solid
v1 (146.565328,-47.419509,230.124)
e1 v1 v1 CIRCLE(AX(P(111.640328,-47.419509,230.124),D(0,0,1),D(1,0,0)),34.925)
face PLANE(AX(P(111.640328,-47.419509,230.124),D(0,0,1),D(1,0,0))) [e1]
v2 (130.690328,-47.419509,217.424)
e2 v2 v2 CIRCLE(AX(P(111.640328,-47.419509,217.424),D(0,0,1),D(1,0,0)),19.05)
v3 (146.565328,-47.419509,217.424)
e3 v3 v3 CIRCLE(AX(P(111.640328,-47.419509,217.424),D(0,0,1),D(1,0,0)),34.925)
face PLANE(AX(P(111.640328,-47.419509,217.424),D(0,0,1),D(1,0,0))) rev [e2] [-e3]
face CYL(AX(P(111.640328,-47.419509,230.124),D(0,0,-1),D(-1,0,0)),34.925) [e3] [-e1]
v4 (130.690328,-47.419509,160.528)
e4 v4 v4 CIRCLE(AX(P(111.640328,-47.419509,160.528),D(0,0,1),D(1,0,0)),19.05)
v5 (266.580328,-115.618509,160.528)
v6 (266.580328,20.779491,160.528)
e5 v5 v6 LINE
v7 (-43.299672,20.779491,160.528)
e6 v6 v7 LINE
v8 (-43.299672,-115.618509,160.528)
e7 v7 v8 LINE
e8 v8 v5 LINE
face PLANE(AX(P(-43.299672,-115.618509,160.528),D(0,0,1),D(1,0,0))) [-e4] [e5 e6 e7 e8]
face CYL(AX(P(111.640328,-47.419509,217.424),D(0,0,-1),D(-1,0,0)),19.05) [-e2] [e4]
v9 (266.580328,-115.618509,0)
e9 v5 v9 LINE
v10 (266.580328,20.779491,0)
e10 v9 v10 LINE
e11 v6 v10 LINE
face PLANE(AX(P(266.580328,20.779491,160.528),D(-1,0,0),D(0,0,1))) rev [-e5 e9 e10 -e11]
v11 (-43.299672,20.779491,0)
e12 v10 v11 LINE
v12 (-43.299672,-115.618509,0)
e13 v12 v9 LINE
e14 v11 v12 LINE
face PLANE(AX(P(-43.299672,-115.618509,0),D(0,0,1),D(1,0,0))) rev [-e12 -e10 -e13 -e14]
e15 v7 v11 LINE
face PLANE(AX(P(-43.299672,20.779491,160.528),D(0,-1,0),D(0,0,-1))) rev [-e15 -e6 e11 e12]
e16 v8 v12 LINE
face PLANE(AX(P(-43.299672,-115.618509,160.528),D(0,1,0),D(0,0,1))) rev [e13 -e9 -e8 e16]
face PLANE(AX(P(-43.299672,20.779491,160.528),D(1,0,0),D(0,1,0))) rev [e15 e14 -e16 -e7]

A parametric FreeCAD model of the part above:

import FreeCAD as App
import Part
import Sketcher
from FreeCAD import Vector
Q = App.Units.Quantity

doc = App.newDocument("Part")
body = doc.addObject("PartDesign::Body", "Body")

# Sketch on XY plane
sketch1 = body.newObject("Sketcher::SketchObject", "Sketch")
sketch1.AttachmentSupport = (doc.getObject("XY_Plane"), [""])
sketch1.MapMode = "FlatFace"
sketch1.addGeometry(Part.LineSegment(Vector(-43, 21, 0), Vector(-43, -116, 0)), False)
sketch1.addGeometry(Part.LineSegment(Vector(-43, -116, 0), Vector(267, -116, 0)), False)
sketch1.addGeometry(Part.LineSegment(Vector(267, -116, 0), Vector(267, 21, 0)), False)
sketch1.addGeometry(Part.LineSegment(Vector(267, 21, 0), Vector(-43, 21, 0)), False)
sketch1.addConstraint(Sketcher.Constraint("Coincident", 0, 2, 1, 1))
sketch1.addConstraint(Sketcher.Constraint("Coincident", 1, 2, 2, 1))
sketch1.addConstraint(Sketcher.Constraint("Coincident", 2, 2, 3, 1))
sketch1.addConstraint(Sketcher.Constraint("Coincident", 3, 2, 0, 1))
sketch1.addConstraint(Sketcher.Constraint("Vertical", 0))
sketch1.addConstraint(Sketcher.Constraint("Horizontal", 1))
sketch1.addConstraint(Sketcher.Constraint("Vertical", 2))
sketch1.addConstraint(Sketcher.Constraint("Horizontal", 3))
sketch1.addConstraint(Sketcher.Constraint("DistanceX", 1, 1, 1, 2, Q("12.2 in")))
sketch1.addConstraint(Sketcher.Constraint("DistanceY", 0, 2, 0, 1, Q("5.37 in")))
sketch1.addConstraint(Sketcher.Constraint("DistanceY", 0, 2, -1, 1, Q("115.618509 mm")))
sketch1.addConstraint(Sketcher.Constraint("DistanceX", 0, 2, -1, 1, Q("43.299672 mm")))
pad1 = body.newObject("PartDesign::Pad", "Pad")
pad1.Profile = sketch1
pad1.Length = Q("6.32 in")

# Sketch on XY plane
sketch2 = body.newObject("Sketcher::SketchObject", "Sketch001")
sketch2.AttachmentSupport = (doc.getObject("XY_Plane"), [""])
sketch2.MapMode = "FlatFace"
sketch2.AttachmentOffset = App.Placement(Vector(0, 0, 6.32 * 25.4), App.Rotation())
sketch2.addGeometry(Part.Circle(Vector(112, -47, 0), Vector(0, 0, 1), 19), False)
sketch2.addConstraint(Sketcher.Constraint("Diameter", 0, Q("1.5 in")))
sketch2.addConstraint(Sketcher.Constraint("DistanceY", 0, 3, -1, 1, Q("47.419509 mm")))
sketch2.addConstraint(Sketcher.Constraint("DistanceX", -1, 1, 0, 3, Q("111.640328 mm")))
pad2 = body.newObject("PartDesign::Pad", "Pad001")
pad2.Profile = sketch2
pad2.Length = Q("2.24 in")

# Sketch on XY plane
sketch3 = body.newObject("Sketcher::SketchObject", "Sketch002")
sketch3.AttachmentSupport = (doc.getObject("XY_Plane"), [""])
sketch3.MapMode = "FlatFace"
sketch3.AttachmentOffset = App.Placement(Vector(0, 0, 8.56 * 25.4), App.Rotation())
sketch3.addGeometry(Part.Circle(Vector(112, -47, 0), Vector(0, 0, 1), 35), False)
sketch3.addConstraint(Sketcher.Constraint("Diameter", 0, Q("2.75 in")))
sketch3.addConstraint(Sketcher.Constraint("DistanceY", 0, 3, -1, 1, Q("47.419509 mm")))
sketch3.addConstraint(Sketcher.Constraint("DistanceX", -1, 1, 0, 3, Q("111.640328 mm")))
pad3 = body.newObject("PartDesign::Pad", "Pad002")
pad3.Profile = sketch3
pad3.Length = Q("0.5 in")

doc.recompute()
